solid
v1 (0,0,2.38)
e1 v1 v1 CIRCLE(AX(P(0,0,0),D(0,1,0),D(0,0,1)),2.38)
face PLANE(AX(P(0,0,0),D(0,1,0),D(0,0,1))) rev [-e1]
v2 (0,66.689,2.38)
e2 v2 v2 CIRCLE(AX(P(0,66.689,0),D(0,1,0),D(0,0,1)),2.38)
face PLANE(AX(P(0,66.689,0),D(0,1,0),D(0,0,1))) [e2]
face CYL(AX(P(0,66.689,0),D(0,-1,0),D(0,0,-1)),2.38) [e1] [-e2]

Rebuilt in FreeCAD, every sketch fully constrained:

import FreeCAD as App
import Part
import Sketcher

V = App.Vector

doc = App.newDocument("Part")
body = doc.addObject("PartDesign::Body", "Body")

# Sketch on XZ plane
sketch1 = doc.addObject("Sketcher::SketchObject", "Sketch")
body.addObject(sketch1)
sketch1.AttachmentSupport = (doc.XZ_Plane, [""])
sketch1.MapMode = "FlatFace"
sketch1.addGeometry(Part.Circle(V(0, 0, 0), V(0, 0, 1), 2.4), False)
sketch1.addConstraint([
    Sketcher.Constraint("Coincident", 0, 3, -1, 1),
    Sketcher.Constraint("Diameter", 0, 4.76),
])
pad1 = doc.addObject("PartDesign::Pad", "Pad")
body.addObject(pad1)
pad1.Profile = sketch1
pad1.Length = 66.689
pad1.Reversed = True

doc.recompute()
